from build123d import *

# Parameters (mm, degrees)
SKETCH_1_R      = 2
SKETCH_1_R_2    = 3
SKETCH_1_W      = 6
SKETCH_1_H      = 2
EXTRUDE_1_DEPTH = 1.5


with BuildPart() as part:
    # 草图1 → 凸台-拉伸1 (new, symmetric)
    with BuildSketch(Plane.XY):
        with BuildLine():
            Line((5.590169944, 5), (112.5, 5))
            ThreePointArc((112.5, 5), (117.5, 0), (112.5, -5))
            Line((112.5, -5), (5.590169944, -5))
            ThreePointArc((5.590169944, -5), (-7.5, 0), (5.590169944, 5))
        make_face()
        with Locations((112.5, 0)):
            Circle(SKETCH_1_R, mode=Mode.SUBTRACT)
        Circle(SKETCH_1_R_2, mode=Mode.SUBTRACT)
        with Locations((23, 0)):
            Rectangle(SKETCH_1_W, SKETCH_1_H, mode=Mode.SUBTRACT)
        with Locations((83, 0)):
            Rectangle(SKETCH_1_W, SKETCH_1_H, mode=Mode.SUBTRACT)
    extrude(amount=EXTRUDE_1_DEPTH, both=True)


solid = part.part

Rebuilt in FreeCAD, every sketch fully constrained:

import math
import FreeCAD as App
import Part
import Sketcher

doc = App.newDocument("Part")
body = doc.addObject("PartDesign::Body", "Body")

# Sketch on XY plane
sketch1 = body.newObject("Sketcher::SketchObject", "Sketch")
sketch1.AttachmentSupport = (doc.getObject("XY_Plane"), [""])
sketch1.MapMode = "FlatFace"
sketch1.addGeometry([
    Part.LineSegment(App.Vector(112.5, 5, 0), App.Vector(5.6, 5, 0)),  # 0
    Part.ArcOfCircle(Part.Circle(App.Vector(0, 0, 0), App.Vector(0, 0, 1), 7.5), math.radians(42), math.radians(318)),  # 1
    Part.LineSegment(App.Vector(5.6, -5, 0), App.Vector(112.5, -5, 0)),  # 2
    Part.ArcOfCircle(Part.Circle(App.Vector(112.5, 0, 0), App.Vector(0, 0, 1), 5), math.radians(-90), math.radians(90)),  # 3
    Part.Circle(App.Vector(112.5, 0, 0), App.Vector(0, 0, 1), 2),  # 4
    Part.LineSegment(App.Vector(80, -1, 0), App.Vector(80, 1, 0)),  # 5
    Part.LineSegment(App.Vector(80, 1, 0), App.Vector(86, 1, 0)),  # 6
    Part.LineSegment(App.Vector(86, 1, 0), App.Vector(86, -1, 0)),  # 7
    Part.LineSegment(App.Vector(86, -1, 0), App.Vector(80, -1, 0)),  # 8
    Part.LineSegment(App.Vector(20, -1, 0), App.Vector(20, 1, 0)),  # 9
    Part.LineSegment(App.Vector(20, 1, 0), App.Vector(26, 1, 0)),  # 10
    Part.LineSegment(App.Vector(26, 1, 0), App.Vector(26, -1, 0)),  # 11
    Part.LineSegment(App.Vector(26, -1, 0), App.Vector(20, -1, 0)),  # 12
    Part.Circle(App.Vector(0, 0, 0), App.Vector(0, 0, 1), 3),  # 13
], False)
sketch1.addConstraint([
    Sketcher.Constraint("Coincident", 0, 2, 1, 1),
    Sketcher.Constraint("Coincident", 1, 2, 2, 1),
    Sketcher.Constraint("Tangent", 2, 2, 3, 1),
    Sketcher.Constraint("Tangent", 3, 2, 0, 1),
    Sketcher.Constraint("Coincident", 5, 2, 6, 1),
    Sketcher.Constraint("Coincident", 6, 2, 7, 1),
    Sketcher.Constraint("Coincident", 7, 2, 8, 1),
    Sketcher.Constraint("Coincident", 8, 2, 5, 1),
    Sketcher.Constraint("Coincident", 9, 2, 10, 1),
    Sketcher.Constraint("Coincident", 10, 2, 11, 1),
    Sketcher.Constraint("Coincident", 11, 2, 12, 1),
    Sketcher.Constraint("Coincident", 12, 2, 9, 1),
    Sketcher.Constraint("Horizontal", 0),
    Sketcher.Constraint("Horizontal", 2),
    Sketcher.Constraint("Vertical", 5),
    Sketcher.Constraint("Horizontal", 6),
    Sketcher.Constraint("Vertical", 7),
    Sketcher.Constraint("Horizontal", 8),
    Sketcher.Constraint("Vertical", 9),
    Sketcher.Constraint("Horizontal", 10),
    Sketcher.Constraint("Vertical", 11),
    Sketcher.Constraint("Horizontal", 12),
    Sketcher.Constraint("Coincident", 1, 3, -1, 1),
    Sketcher.Constraint("Coincident", 13, 3, -1, 1),
    Sketcher.Constraint("Coincident", 4, 3, 3, 3),
    Sketcher.Constraint("PointOnObject", 3, 3, -1),
    Sketcher.Constraint("Horizontal", 6, 2, 9, 2),
    Sketcher.Constraint("Horizontal", 8, 2, 11, 2),
    Sketcher.Constraint("Equal", 8, 10),
    Sketcher.Constraint("Diameter", 4, 4.0),
    Sketcher.Constraint("Diameter", 13, 6.0),
    Sketcher.Constraint("Radius", 3, 5.0),
    Sketcher.Constraint("Radius", 1, 7.5),
    Sketcher.Constraint("DistanceX", 6, 1, 6, 2, 6.0),
    Sketcher.Constraint("DistanceY", 5, 1, 5, 2, 2.0),
    Sketcher.Constraint("DistanceX", -1, 1, 5, 2, 80.0),
    Sketcher.Constraint("DistanceY", -1, 1, 5, 2, 1.0),
    Sketcher.Constraint("DistanceX", -1, 1, 9, 2, 20.0),
    Sketcher.Constraint("DistanceX", -1, 1, 3, 3, 112.5),
])
pad1 = body.newObject("PartDesign::Pad", "Pad")
pad1.Profile = sketch1
pad1.Length = 3
pad1.Midplane = True

doc.recompute()
